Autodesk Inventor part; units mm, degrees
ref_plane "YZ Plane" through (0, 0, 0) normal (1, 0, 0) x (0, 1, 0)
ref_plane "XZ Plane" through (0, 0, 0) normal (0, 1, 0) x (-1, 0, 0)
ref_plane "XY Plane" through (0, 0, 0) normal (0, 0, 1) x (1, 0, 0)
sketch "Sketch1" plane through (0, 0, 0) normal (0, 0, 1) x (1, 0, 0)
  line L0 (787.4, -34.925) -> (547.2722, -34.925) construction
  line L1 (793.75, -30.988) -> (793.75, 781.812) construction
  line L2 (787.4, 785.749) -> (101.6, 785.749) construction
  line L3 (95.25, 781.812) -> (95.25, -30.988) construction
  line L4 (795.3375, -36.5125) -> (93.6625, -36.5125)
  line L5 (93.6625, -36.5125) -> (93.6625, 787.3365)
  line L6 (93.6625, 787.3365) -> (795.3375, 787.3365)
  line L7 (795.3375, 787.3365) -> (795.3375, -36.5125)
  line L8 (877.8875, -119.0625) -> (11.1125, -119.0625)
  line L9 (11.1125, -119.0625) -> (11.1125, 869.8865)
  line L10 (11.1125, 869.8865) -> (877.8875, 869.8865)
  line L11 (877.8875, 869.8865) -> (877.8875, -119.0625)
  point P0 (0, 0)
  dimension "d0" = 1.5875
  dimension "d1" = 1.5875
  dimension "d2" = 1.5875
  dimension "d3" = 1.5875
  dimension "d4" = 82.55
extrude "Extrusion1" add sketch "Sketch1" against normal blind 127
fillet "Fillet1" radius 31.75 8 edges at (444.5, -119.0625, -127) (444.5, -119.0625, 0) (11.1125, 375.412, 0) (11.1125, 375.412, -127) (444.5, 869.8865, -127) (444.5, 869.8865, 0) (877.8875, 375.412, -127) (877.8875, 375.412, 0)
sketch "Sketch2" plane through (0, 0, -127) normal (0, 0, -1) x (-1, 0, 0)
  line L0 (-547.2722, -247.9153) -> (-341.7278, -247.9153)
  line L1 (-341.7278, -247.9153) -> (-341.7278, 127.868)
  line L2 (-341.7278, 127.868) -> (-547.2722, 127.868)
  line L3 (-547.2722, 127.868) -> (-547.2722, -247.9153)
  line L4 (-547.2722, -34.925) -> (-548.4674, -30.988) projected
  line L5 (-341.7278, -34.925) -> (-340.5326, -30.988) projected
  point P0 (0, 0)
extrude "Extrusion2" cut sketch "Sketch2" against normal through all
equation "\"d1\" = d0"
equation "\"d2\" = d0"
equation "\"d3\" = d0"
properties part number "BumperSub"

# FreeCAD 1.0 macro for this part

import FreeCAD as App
import Part
import Sketcher
Q = App.Units.Quantity


def edges_at(feature, points):
    """Names of the edges that pass closest to the given points."""
    edges = feature.Shape.Edges
    near = lambda p: min(range(len(edges)), key=lambda i: edges[i].distToShape(Part.Vertex(*p))[0])
    return sorted({f"Edge{near(p) + 1}" for p in points})


def add_polygon(sketch, points):
    """Adds a closed chain of lines whose ends are joined by coincident constraints."""
    first, n = sketch.GeometryCount, len(points)
    for a, b in zip(points, points[1:] + points[:1]):
        sketch.addGeometry(Part.LineSegment(App.Vector(*a, 0), App.Vector(*b, 0)), False)
    for i in range(n):
        sketch.addConstraint(Sketcher.Constraint("Coincident", first + i, 2, first + (i + 1) % n, 1))

doc = App.newDocument("Part")
body = doc.addObject("PartDesign::Body", "Body")

# Sketch on XY plane
sketch1 = doc.addObject("Sketcher::SketchObject", "Sketch")
body.addObject(sketch1)
sketch1.AttachmentSupport = (doc.XY_Plane, [""])
sketch1.MapMode = "FlatFace"
add_polygon(sketch1, [(11, -119), (878, -119), (878, 870), (11, 870)])  # lines 0-3
add_polygon(sketch1, [(795, 787), (795, -37), (94, -37), (94, 787)])  # lines 4-7
sketch1.addConstraint(Sketcher.Constraint("Horizontal", 0))
sketch1.addConstraint(Sketcher.Constraint("Vertical", 1))
sketch1.addConstraint(Sketcher.Constraint("Horizontal", 2))
sketch1.addConstraint(Sketcher.Constraint("Vertical", 3))
sketch1.addConstraint(Sketcher.Constraint("Vertical", 4))
sketch1.addConstraint(Sketcher.Constraint("Horizontal", 5))
sketch1.addConstraint(Sketcher.Constraint("Vertical", 6))
sketch1.addConstraint(Sketcher.Constraint("Horizontal", 7))
sketch1.addConstraint(Sketcher.Constraint("DistanceX", 4, 2, 0, 2, Q("3.25 in")))
sketch1.addConstraint(Sketcher.Constraint("DistanceY", 0, 2, 4, 2, Q("3.25 in")))
sketch1.addConstraint(Sketcher.Constraint("DistanceX", 3, 2, 5, 2, Q("3.25 in")))
sketch1.addConstraint(Sketcher.Constraint("DistanceY", 6, 2, 2, 2, Q("3.25 in")))
sketch1.addConstraint(Sketcher.Constraint("DistanceX", 0, 1, 0, 2, Q("34.125 in")))
sketch1.addConstraint(Sketcher.Constraint("DistanceY", 1, 1, 1, 2, Q("38.935 in")))
sketch1.addConstraint(Sketcher.Constraint("DistanceX", -1, 1, 0, 2, Q("34.5625 in")))
sketch1.addConstraint(Sketcher.Constraint("DistanceY", 0, 2, -1, 1, Q("4.6875 in")))
pad1 = doc.addObject("PartDesign::Pad", "Pad")
body.addObject(pad1)
pad1.Profile = sketch1
pad1.Length = Q("5 in")
pad1.Reversed = True
doc.recompute()

fillet = doc.addObject("PartDesign::Fillet", "Fillet")
body.addObject(fillet)
fillet.Base = (pad1, edges_at(pad1, [
    (444.5, -119.062, -127),
    (444.5, -119.062, 0),
    (11.113, 375.412, 0),
    (11.113, 375.412, -127),
    (444.5, 869.886, -127),
    (444.5, 869.886, 0),
    (877.888, 375.412, -127),
    (877.888, 375.412, 0),
]))
fillet.Radius = Q("1.25 in")

# Sketch on XY plane
sketch2 = doc.addObject("Sketcher::SketchObject", "Sketch001")
body.addObject(sketch2)
sketch2.AttachmentSupport = (doc.XY_Plane, [""])
sketch2.MapMode = "FlatFace"
sketch2.AttachmentOffset = App.Placement(App.Vector(0, 0, -5 * 25.4), App.Rotation())
add_polygon(sketch2, [(547, 128), (547, -248), (342, -248), (342, 128)])  # lines 0-3
sketch2.addConstraint(Sketcher.Constraint("Vertical", 0))
sketch2.addConstraint(Sketcher.Constraint("Horizontal", 1))
sketch2.addConstraint(Sketcher.Constraint("Vertical", 2))
sketch2.addConstraint(Sketcher.Constraint("Horizontal", 3))
sketch2.addConstraint(Sketcher.Constraint("DistanceX", 1, 2, 1, 1, Q("8.0923 in")))
sketch2.addConstraint(Sketcher.Constraint("DistanceY", 0, 2, 0, 1, Q("375.7833 mm")))
sketch2.addConstraint(Sketcher.Constraint("DistanceX", -1, 1, 0, 2, Q("547.2722 mm")))
sketch2.addConstraint(Sketcher.Constraint("DistanceY", 0, 2, -1, 1, Q("247.9153 mm")))
pocket1 = doc.addObject("PartDesign::Pocket", "Pocket")
body.addObject(pocket1)
pocket1.Profile = sketch2
pocket1.Type = "ThroughAll"
pocket1.Reversed = True

doc.recompute()
